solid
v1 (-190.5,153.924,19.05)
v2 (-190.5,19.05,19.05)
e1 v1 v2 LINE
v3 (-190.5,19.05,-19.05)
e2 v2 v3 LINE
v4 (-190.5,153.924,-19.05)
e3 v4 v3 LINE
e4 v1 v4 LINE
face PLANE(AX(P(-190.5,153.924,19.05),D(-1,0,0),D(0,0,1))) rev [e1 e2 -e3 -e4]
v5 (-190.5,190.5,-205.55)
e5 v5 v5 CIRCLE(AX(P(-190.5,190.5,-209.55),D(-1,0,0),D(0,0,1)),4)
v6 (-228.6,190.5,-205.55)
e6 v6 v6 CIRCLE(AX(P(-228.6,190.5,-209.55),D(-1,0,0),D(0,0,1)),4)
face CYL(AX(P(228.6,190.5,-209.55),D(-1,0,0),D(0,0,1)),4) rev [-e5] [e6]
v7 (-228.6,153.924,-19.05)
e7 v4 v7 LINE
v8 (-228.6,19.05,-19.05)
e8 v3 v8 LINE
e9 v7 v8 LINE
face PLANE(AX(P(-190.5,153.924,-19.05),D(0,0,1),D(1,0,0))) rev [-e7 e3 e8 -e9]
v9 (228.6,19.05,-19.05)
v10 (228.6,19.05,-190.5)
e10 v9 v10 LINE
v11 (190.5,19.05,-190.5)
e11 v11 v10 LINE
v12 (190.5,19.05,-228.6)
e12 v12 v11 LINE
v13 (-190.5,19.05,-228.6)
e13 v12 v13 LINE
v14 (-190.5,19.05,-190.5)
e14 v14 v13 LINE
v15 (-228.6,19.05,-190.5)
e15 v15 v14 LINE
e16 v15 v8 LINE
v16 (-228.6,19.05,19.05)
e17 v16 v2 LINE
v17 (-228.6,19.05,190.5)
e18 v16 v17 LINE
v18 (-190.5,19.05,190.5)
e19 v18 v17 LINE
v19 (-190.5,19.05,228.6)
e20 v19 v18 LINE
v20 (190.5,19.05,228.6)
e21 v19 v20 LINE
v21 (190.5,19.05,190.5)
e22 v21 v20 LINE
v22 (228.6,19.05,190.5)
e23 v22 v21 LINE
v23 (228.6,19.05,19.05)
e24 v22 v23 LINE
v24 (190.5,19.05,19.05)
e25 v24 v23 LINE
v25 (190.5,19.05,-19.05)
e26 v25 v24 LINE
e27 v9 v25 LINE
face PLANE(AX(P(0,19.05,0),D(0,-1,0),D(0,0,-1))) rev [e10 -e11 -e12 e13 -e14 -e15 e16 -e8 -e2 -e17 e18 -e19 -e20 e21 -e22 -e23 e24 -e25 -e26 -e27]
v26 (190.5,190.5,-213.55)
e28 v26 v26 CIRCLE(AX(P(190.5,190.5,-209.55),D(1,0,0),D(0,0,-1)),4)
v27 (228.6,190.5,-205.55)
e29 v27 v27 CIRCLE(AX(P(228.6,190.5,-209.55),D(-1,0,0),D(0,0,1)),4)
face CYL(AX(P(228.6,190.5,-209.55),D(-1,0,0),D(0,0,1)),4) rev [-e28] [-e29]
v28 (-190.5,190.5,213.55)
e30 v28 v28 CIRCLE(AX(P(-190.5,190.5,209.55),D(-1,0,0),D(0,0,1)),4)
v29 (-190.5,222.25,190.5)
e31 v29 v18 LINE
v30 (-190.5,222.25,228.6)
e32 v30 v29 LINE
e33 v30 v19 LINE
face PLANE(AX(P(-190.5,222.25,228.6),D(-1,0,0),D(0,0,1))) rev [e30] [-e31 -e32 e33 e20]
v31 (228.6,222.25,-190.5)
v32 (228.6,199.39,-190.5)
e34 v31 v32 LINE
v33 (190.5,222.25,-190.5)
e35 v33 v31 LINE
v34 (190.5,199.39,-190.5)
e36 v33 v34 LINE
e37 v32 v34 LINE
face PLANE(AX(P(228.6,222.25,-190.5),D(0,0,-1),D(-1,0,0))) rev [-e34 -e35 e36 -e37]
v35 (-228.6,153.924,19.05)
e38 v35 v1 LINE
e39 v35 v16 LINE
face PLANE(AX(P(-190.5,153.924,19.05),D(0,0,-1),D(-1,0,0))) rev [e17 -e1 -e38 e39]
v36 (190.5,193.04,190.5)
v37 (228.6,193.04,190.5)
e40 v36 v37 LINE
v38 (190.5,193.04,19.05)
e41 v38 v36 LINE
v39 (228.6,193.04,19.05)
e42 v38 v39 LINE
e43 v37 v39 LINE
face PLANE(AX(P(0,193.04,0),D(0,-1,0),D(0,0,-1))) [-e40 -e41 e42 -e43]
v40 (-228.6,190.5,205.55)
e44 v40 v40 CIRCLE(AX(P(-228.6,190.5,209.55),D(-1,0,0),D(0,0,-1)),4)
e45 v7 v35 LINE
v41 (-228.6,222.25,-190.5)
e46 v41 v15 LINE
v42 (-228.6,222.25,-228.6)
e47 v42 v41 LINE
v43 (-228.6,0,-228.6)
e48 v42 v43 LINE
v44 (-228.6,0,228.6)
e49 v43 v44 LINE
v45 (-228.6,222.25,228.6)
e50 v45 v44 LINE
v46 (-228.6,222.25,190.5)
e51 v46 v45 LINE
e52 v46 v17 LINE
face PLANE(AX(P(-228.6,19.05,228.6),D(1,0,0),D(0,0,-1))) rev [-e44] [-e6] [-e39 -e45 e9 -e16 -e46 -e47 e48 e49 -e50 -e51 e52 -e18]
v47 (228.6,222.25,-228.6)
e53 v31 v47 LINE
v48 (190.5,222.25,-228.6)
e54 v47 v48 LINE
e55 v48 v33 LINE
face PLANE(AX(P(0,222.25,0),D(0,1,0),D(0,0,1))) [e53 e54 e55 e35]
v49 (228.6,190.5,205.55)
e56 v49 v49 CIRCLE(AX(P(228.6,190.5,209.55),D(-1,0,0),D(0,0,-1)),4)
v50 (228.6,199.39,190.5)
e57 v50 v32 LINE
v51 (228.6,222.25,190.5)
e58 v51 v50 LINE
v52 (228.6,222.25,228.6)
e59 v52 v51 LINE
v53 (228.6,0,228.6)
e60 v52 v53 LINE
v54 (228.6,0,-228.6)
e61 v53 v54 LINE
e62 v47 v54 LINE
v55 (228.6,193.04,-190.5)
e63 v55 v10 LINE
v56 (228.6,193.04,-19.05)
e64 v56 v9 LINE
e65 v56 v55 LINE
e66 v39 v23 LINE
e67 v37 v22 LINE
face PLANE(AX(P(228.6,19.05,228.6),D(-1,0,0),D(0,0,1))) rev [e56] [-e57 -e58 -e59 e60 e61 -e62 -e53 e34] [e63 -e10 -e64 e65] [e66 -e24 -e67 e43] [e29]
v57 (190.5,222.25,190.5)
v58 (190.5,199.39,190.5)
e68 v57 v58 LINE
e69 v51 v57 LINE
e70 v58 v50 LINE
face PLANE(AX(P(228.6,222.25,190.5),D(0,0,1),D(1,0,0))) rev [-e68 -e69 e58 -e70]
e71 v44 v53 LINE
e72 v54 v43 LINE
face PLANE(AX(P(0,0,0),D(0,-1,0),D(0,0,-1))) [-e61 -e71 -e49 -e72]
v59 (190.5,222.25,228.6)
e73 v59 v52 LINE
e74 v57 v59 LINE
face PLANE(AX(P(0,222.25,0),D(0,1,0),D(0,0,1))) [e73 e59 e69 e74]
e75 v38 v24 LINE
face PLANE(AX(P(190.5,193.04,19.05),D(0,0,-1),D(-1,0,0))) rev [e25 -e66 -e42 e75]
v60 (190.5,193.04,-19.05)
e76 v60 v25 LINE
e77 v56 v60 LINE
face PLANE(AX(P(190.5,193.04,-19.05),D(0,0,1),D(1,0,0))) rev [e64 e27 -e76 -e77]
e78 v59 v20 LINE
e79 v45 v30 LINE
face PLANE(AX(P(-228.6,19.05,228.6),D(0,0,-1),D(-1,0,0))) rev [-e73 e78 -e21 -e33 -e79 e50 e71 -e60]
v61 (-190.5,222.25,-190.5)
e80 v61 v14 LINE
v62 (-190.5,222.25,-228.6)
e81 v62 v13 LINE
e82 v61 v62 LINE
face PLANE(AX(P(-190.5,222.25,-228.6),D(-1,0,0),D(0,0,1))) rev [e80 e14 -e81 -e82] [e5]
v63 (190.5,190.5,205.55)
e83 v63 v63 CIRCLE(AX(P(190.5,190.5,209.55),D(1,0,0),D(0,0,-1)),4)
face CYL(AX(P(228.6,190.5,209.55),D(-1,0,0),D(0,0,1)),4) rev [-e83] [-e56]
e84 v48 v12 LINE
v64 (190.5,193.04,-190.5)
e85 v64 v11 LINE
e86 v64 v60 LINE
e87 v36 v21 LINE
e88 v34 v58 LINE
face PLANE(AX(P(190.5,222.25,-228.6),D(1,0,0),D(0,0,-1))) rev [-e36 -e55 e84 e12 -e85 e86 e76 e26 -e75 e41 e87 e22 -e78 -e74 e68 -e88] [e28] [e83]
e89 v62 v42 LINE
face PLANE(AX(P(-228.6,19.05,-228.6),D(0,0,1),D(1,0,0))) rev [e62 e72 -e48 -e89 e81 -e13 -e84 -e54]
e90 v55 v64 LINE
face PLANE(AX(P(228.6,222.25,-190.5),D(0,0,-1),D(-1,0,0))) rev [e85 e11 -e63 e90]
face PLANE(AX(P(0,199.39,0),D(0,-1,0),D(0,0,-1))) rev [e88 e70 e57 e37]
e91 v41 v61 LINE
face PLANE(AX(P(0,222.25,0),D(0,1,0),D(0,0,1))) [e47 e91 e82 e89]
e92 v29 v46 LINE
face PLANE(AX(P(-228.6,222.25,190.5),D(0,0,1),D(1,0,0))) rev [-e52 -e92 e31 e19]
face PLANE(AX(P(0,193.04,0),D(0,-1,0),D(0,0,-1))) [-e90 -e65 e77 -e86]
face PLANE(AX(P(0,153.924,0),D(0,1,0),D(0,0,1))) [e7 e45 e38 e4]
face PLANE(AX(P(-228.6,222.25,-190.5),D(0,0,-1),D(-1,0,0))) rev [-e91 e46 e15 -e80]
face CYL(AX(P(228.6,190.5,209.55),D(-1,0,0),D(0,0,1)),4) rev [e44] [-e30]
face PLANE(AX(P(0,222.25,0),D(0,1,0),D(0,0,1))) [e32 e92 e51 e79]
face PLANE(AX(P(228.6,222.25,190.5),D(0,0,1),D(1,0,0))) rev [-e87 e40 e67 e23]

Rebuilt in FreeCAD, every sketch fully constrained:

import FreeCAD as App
import Part
import Sketcher
Q = App.Units.Quantity


def add_polygon(sketch, points):
    """Adds a closed chain of lines whose ends are joined by coincident constraints."""
    first, n = sketch.GeometryCount, len(points)
    for a, b in zip(points, points[1:] + points[:1]):
        sketch.addGeometry(Part.LineSegment(App.Vector(*a, 0), App.Vector(*b, 0)), False)
    for i in range(n):
        sketch.addConstraint(Sketcher.Constraint("Coincident", first + i, 2, first + (i + 1) % n, 1))

doc = App.newDocument("Part")
body = doc.addObject("PartDesign::Body", "Body")

sketch1 = body.newObject("Sketcher::SketchObject", "Sketch")
sketch1.AttachmentSupport = (doc.getObject("XZ_Plane"), [""])
sketch1.MapMode = "FlatFace"
add_polygon(sketch1, [(-229, -229), (-229, 229), (229, 229), (229, -229)])
sketch1.addConstraint([
    Sketcher.Constraint("Vertical", 0),
    Sketcher.Constraint("Horizontal", 1),
    Sketcher.Constraint("Vertical", 2),
    Sketcher.Constraint("Horizontal", 3),
    Sketcher.Constraint("Symmetric", 0, 2, 2, 2, -1, 1),
    Sketcher.Constraint("Equal", 3, 0),
    Sketcher.Constraint("DistanceX", 1, 1, 1, 2, Q("18 in")),
])
pad1 = body.newObject("PartDesign::Pad", "Pad")
pad1.Profile = sketch1
pad1.Length = Q("0.75 in")
pad1.Reversed = True

sketch2 = body.newObject("Sketcher::SketchObject", "Sketch001")
sketch2.AttachmentSupport = (doc.getObject("XZ_Plane"), [""])
sketch2.MapMode = "FlatFace"
sketch2.AttachmentOffset = App.Placement(App.Vector(0, 0, -0.75 * 25.4), App.Rotation())
add_polygon(sketch2, [(190, -229), (190, -190), (229, -190), (229, -229)])
add_polygon(sketch2, [(-229, -229), (-229, -190), (-190, -190), (-190, -229)])
add_polygon(sketch2, [(-229, 190), (-229, 229), (-190, 229), (-190, 190)])
add_polygon(sketch2, [(190, 190), (190, 229), (229, 229), (229, 190)])
sketch2.addConstraint([
    Sketcher.Constraint("Vertical", 0),
    Sketcher.Constraint("Horizontal", 1),
    Sketcher.Constraint("Vertical", 2),
    Sketcher.Constraint("Horizontal", 3),
    Sketcher.Constraint("Vertical", 4),
    Sketcher.Constraint("Horizontal", 5),
    Sketcher.Constraint("Vertical", 6),
    Sketcher.Constraint("Horizontal", 7),
    Sketcher.Constraint("Vertical", 8),
    Sketcher.Constraint("Horizontal", 9),
    Sketcher.Constraint("Vertical", 10),
    Sketcher.Constraint("Horizontal", 11),
    Sketcher.Constraint("Vertical", 12),
    Sketcher.Constraint("Horizontal", 13),
    Sketcher.Constraint("Vertical", 14),
    Sketcher.Constraint("Horizontal", 15),
    Sketcher.Constraint("Symmetric", 2, 2, 8, 2, -1, 1),
    Sketcher.Constraint("Symmetric", 0, 2, 10, 2, -1, 1),
    Sketcher.Constraint("Symmetric", 6, 2, 12, 2, -1, 1),
    Sketcher.Constraint("Symmetric", 4, 2, 14, 2, -1, 1),
    Sketcher.Constraint("Symmetric", 1, 2, 4, 2, -2),
    Sketcher.Constraint("Symmetric", 3, 2, 6, 2, -2),
    Sketcher.Constraint("Equal", 15, 0),
    Sketcher.Constraint("DistanceX", 1, 1, 1, 2, Q("1.5 in")),
    Sketcher.Constraint("DistanceX", -1, 1, 1, 2, Q("9 in")),
    Sketcher.Constraint("DistanceY", 2, 2, -1, 1, Q("9 in")),
])
pad2 = body.newObject("PartDesign::Pad", "Pad001")
pad2.Profile = sketch2
pad2.Length = Q("8 in")
pad2.Reversed = True

sketch3 = body.newObject("Sketcher::SketchObject", "Sketch002")
sketch3.AttachmentSupport = (doc.getObject("YZ_Plane"), [""])
sketch3.MapMode = "FlatFace"
sketch3.AttachmentOffset = App.Placement(App.Vector(0, 0, -9 * 25.4), App.Rotation())
sketch3.addGeometry([
    Part.Circle(App.Vector(190.5, -209.6, 0), App.Vector(0, 0, 1), 4),
    Part.Circle(App.Vector(190.5, 209.6, 0), App.Vector(0, 0, 1), 4),
], False)
sketch3.addConstraint([
    Sketcher.Constraint("Equal", 0, 1),
    Sketcher.Constraint("Symmetric", 0, 3, 1, 3, -1),
    Sketcher.Constraint("DistanceX", -1, 1, 0, 3, Q("7.5 in")),
    Sketcher.Constraint("DistanceY", 0, 3, 1, 3, Q("16.5 in")),
    Sketcher.Constraint("Diameter", 0, Q("8 mm")),
])
pocket1 = body.newObject("PartDesign::Pocket", "Pocket")
pocket1.Profile = sketch3
pocket1.Length = Q("18 in")
pocket1.Reversed = True

sketch4 = body.newObject("Sketcher::SketchObject", "Sketch003")
sketch4.AttachmentSupport = (doc.getObject("XZ_Plane"), [""])
sketch4.MapMode = "FlatFace"
sketch4.AttachmentOffset = App.Placement(App.Vector(0, 0, -0.75 * 25.4), App.Rotation())
add_polygon(sketch4, [(-229, -19), (-229, 19), (-190, 19), (-190, -19)])
sketch4.addConstraint([
    Sketcher.Constraint("Vertical", 0),
    Sketcher.Constraint("Horizontal", 1),
    Sketcher.Constraint("Vertical", 2),
    Sketcher.Constraint("Horizontal", 3),
    Sketcher.Constraint("Equal", 3, 0),
    Sketcher.Constraint("DistanceX", 1, 1, 1, 2, Q("1.5 in")),
    Sketcher.Constraint("DistanceX", 0, 2, -1, 1, Q("9 in")),
    Sketcher.Constraint("DistanceY", -1, 1, 0, 2, Q("0.75 in")),
])
pad3 = body.newObject("PartDesign::Pad", "Pad002")
pad3.Profile = sketch4
pad3.Length = Q("5.31 in")
pad3.Reversed = True

sketch5 = body.newObject("Sketcher::SketchObject", "Sketch004")
sketch5.AttachmentSupport = (doc.getObject("XZ_Plane"), [""])
sketch5.MapMode = "FlatFace"
sketch5.AttachmentOffset = App.Placement(App.Vector(0, 0, -0.75 * 25.4), App.Rotation())
add_polygon(sketch5, [(190, -19), (190, 19), (229, 19), (229, -19)])
sketch5.addConstraint([
    Sketcher.Constraint("Vertical", 0),
    Sketcher.Constraint("Horizontal", 1),
    Sketcher.Constraint("Vertical", 2),
    Sketcher.Constraint("Horizontal", 3),
    Sketcher.Constraint("Equal", 3, 0),
    Sketcher.Constraint("DistanceX", 1, 1, 1, 2, Q("1.5 in")),
    Sketcher.Constraint("DistanceX", -1, 1, 1, 2, Q("9 in")),
    Sketcher.Constraint("DistanceY", -1, 1, 0, 2, Q("0.75 in")),
])
pad4 = body.newObject("PartDesign::Pad", "Pad003")
pad4.Profile = sketch5
pad4.Length = Q("6.85 in")
pad4.Reversed = True

sketch6 = body.newObject("Sketcher::SketchObject", "Sketch005")
sketch6.AttachmentSupport = (doc.getObject("XZ_Plane"), [""])
sketch6.MapMode = "FlatFace"
sketch6.AttachmentOffset = App.Placement(App.Vector(0, 0, -7.6 * 25.4), App.Rotation())
add_polygon(sketch6, [(190, -190), (190, 190), (229, 190), (229, -190)])
sketch6.addConstraint([
    Sketcher.Constraint("Vertical", 0),
    Sketcher.Constraint("Horizontal", 1),
    Sketcher.Constraint("Vertical", 2),
    Sketcher.Constraint("Horizontal", 3),
    Sketcher.Constraint("DistanceY", 0, 1, 0, 2, Q("15 in")),
    Sketcher.Constraint("DistanceX", 1, 1, 1, 2, Q("1.5 in")),
    Sketcher.Constraint("DistanceX", -1, 1, 1, 2, Q("9 in")),
    Sketcher.Constraint("DistanceY", -1, 1, 0, 2, Q("7.5 in")),
])
pad5 = body.newObject("PartDesign::Pad", "Pad004")
pad5.Profile = sketch6
pad5.Length = Q("0.25 in")
pad5.Reversed = True

doc.recompute()
